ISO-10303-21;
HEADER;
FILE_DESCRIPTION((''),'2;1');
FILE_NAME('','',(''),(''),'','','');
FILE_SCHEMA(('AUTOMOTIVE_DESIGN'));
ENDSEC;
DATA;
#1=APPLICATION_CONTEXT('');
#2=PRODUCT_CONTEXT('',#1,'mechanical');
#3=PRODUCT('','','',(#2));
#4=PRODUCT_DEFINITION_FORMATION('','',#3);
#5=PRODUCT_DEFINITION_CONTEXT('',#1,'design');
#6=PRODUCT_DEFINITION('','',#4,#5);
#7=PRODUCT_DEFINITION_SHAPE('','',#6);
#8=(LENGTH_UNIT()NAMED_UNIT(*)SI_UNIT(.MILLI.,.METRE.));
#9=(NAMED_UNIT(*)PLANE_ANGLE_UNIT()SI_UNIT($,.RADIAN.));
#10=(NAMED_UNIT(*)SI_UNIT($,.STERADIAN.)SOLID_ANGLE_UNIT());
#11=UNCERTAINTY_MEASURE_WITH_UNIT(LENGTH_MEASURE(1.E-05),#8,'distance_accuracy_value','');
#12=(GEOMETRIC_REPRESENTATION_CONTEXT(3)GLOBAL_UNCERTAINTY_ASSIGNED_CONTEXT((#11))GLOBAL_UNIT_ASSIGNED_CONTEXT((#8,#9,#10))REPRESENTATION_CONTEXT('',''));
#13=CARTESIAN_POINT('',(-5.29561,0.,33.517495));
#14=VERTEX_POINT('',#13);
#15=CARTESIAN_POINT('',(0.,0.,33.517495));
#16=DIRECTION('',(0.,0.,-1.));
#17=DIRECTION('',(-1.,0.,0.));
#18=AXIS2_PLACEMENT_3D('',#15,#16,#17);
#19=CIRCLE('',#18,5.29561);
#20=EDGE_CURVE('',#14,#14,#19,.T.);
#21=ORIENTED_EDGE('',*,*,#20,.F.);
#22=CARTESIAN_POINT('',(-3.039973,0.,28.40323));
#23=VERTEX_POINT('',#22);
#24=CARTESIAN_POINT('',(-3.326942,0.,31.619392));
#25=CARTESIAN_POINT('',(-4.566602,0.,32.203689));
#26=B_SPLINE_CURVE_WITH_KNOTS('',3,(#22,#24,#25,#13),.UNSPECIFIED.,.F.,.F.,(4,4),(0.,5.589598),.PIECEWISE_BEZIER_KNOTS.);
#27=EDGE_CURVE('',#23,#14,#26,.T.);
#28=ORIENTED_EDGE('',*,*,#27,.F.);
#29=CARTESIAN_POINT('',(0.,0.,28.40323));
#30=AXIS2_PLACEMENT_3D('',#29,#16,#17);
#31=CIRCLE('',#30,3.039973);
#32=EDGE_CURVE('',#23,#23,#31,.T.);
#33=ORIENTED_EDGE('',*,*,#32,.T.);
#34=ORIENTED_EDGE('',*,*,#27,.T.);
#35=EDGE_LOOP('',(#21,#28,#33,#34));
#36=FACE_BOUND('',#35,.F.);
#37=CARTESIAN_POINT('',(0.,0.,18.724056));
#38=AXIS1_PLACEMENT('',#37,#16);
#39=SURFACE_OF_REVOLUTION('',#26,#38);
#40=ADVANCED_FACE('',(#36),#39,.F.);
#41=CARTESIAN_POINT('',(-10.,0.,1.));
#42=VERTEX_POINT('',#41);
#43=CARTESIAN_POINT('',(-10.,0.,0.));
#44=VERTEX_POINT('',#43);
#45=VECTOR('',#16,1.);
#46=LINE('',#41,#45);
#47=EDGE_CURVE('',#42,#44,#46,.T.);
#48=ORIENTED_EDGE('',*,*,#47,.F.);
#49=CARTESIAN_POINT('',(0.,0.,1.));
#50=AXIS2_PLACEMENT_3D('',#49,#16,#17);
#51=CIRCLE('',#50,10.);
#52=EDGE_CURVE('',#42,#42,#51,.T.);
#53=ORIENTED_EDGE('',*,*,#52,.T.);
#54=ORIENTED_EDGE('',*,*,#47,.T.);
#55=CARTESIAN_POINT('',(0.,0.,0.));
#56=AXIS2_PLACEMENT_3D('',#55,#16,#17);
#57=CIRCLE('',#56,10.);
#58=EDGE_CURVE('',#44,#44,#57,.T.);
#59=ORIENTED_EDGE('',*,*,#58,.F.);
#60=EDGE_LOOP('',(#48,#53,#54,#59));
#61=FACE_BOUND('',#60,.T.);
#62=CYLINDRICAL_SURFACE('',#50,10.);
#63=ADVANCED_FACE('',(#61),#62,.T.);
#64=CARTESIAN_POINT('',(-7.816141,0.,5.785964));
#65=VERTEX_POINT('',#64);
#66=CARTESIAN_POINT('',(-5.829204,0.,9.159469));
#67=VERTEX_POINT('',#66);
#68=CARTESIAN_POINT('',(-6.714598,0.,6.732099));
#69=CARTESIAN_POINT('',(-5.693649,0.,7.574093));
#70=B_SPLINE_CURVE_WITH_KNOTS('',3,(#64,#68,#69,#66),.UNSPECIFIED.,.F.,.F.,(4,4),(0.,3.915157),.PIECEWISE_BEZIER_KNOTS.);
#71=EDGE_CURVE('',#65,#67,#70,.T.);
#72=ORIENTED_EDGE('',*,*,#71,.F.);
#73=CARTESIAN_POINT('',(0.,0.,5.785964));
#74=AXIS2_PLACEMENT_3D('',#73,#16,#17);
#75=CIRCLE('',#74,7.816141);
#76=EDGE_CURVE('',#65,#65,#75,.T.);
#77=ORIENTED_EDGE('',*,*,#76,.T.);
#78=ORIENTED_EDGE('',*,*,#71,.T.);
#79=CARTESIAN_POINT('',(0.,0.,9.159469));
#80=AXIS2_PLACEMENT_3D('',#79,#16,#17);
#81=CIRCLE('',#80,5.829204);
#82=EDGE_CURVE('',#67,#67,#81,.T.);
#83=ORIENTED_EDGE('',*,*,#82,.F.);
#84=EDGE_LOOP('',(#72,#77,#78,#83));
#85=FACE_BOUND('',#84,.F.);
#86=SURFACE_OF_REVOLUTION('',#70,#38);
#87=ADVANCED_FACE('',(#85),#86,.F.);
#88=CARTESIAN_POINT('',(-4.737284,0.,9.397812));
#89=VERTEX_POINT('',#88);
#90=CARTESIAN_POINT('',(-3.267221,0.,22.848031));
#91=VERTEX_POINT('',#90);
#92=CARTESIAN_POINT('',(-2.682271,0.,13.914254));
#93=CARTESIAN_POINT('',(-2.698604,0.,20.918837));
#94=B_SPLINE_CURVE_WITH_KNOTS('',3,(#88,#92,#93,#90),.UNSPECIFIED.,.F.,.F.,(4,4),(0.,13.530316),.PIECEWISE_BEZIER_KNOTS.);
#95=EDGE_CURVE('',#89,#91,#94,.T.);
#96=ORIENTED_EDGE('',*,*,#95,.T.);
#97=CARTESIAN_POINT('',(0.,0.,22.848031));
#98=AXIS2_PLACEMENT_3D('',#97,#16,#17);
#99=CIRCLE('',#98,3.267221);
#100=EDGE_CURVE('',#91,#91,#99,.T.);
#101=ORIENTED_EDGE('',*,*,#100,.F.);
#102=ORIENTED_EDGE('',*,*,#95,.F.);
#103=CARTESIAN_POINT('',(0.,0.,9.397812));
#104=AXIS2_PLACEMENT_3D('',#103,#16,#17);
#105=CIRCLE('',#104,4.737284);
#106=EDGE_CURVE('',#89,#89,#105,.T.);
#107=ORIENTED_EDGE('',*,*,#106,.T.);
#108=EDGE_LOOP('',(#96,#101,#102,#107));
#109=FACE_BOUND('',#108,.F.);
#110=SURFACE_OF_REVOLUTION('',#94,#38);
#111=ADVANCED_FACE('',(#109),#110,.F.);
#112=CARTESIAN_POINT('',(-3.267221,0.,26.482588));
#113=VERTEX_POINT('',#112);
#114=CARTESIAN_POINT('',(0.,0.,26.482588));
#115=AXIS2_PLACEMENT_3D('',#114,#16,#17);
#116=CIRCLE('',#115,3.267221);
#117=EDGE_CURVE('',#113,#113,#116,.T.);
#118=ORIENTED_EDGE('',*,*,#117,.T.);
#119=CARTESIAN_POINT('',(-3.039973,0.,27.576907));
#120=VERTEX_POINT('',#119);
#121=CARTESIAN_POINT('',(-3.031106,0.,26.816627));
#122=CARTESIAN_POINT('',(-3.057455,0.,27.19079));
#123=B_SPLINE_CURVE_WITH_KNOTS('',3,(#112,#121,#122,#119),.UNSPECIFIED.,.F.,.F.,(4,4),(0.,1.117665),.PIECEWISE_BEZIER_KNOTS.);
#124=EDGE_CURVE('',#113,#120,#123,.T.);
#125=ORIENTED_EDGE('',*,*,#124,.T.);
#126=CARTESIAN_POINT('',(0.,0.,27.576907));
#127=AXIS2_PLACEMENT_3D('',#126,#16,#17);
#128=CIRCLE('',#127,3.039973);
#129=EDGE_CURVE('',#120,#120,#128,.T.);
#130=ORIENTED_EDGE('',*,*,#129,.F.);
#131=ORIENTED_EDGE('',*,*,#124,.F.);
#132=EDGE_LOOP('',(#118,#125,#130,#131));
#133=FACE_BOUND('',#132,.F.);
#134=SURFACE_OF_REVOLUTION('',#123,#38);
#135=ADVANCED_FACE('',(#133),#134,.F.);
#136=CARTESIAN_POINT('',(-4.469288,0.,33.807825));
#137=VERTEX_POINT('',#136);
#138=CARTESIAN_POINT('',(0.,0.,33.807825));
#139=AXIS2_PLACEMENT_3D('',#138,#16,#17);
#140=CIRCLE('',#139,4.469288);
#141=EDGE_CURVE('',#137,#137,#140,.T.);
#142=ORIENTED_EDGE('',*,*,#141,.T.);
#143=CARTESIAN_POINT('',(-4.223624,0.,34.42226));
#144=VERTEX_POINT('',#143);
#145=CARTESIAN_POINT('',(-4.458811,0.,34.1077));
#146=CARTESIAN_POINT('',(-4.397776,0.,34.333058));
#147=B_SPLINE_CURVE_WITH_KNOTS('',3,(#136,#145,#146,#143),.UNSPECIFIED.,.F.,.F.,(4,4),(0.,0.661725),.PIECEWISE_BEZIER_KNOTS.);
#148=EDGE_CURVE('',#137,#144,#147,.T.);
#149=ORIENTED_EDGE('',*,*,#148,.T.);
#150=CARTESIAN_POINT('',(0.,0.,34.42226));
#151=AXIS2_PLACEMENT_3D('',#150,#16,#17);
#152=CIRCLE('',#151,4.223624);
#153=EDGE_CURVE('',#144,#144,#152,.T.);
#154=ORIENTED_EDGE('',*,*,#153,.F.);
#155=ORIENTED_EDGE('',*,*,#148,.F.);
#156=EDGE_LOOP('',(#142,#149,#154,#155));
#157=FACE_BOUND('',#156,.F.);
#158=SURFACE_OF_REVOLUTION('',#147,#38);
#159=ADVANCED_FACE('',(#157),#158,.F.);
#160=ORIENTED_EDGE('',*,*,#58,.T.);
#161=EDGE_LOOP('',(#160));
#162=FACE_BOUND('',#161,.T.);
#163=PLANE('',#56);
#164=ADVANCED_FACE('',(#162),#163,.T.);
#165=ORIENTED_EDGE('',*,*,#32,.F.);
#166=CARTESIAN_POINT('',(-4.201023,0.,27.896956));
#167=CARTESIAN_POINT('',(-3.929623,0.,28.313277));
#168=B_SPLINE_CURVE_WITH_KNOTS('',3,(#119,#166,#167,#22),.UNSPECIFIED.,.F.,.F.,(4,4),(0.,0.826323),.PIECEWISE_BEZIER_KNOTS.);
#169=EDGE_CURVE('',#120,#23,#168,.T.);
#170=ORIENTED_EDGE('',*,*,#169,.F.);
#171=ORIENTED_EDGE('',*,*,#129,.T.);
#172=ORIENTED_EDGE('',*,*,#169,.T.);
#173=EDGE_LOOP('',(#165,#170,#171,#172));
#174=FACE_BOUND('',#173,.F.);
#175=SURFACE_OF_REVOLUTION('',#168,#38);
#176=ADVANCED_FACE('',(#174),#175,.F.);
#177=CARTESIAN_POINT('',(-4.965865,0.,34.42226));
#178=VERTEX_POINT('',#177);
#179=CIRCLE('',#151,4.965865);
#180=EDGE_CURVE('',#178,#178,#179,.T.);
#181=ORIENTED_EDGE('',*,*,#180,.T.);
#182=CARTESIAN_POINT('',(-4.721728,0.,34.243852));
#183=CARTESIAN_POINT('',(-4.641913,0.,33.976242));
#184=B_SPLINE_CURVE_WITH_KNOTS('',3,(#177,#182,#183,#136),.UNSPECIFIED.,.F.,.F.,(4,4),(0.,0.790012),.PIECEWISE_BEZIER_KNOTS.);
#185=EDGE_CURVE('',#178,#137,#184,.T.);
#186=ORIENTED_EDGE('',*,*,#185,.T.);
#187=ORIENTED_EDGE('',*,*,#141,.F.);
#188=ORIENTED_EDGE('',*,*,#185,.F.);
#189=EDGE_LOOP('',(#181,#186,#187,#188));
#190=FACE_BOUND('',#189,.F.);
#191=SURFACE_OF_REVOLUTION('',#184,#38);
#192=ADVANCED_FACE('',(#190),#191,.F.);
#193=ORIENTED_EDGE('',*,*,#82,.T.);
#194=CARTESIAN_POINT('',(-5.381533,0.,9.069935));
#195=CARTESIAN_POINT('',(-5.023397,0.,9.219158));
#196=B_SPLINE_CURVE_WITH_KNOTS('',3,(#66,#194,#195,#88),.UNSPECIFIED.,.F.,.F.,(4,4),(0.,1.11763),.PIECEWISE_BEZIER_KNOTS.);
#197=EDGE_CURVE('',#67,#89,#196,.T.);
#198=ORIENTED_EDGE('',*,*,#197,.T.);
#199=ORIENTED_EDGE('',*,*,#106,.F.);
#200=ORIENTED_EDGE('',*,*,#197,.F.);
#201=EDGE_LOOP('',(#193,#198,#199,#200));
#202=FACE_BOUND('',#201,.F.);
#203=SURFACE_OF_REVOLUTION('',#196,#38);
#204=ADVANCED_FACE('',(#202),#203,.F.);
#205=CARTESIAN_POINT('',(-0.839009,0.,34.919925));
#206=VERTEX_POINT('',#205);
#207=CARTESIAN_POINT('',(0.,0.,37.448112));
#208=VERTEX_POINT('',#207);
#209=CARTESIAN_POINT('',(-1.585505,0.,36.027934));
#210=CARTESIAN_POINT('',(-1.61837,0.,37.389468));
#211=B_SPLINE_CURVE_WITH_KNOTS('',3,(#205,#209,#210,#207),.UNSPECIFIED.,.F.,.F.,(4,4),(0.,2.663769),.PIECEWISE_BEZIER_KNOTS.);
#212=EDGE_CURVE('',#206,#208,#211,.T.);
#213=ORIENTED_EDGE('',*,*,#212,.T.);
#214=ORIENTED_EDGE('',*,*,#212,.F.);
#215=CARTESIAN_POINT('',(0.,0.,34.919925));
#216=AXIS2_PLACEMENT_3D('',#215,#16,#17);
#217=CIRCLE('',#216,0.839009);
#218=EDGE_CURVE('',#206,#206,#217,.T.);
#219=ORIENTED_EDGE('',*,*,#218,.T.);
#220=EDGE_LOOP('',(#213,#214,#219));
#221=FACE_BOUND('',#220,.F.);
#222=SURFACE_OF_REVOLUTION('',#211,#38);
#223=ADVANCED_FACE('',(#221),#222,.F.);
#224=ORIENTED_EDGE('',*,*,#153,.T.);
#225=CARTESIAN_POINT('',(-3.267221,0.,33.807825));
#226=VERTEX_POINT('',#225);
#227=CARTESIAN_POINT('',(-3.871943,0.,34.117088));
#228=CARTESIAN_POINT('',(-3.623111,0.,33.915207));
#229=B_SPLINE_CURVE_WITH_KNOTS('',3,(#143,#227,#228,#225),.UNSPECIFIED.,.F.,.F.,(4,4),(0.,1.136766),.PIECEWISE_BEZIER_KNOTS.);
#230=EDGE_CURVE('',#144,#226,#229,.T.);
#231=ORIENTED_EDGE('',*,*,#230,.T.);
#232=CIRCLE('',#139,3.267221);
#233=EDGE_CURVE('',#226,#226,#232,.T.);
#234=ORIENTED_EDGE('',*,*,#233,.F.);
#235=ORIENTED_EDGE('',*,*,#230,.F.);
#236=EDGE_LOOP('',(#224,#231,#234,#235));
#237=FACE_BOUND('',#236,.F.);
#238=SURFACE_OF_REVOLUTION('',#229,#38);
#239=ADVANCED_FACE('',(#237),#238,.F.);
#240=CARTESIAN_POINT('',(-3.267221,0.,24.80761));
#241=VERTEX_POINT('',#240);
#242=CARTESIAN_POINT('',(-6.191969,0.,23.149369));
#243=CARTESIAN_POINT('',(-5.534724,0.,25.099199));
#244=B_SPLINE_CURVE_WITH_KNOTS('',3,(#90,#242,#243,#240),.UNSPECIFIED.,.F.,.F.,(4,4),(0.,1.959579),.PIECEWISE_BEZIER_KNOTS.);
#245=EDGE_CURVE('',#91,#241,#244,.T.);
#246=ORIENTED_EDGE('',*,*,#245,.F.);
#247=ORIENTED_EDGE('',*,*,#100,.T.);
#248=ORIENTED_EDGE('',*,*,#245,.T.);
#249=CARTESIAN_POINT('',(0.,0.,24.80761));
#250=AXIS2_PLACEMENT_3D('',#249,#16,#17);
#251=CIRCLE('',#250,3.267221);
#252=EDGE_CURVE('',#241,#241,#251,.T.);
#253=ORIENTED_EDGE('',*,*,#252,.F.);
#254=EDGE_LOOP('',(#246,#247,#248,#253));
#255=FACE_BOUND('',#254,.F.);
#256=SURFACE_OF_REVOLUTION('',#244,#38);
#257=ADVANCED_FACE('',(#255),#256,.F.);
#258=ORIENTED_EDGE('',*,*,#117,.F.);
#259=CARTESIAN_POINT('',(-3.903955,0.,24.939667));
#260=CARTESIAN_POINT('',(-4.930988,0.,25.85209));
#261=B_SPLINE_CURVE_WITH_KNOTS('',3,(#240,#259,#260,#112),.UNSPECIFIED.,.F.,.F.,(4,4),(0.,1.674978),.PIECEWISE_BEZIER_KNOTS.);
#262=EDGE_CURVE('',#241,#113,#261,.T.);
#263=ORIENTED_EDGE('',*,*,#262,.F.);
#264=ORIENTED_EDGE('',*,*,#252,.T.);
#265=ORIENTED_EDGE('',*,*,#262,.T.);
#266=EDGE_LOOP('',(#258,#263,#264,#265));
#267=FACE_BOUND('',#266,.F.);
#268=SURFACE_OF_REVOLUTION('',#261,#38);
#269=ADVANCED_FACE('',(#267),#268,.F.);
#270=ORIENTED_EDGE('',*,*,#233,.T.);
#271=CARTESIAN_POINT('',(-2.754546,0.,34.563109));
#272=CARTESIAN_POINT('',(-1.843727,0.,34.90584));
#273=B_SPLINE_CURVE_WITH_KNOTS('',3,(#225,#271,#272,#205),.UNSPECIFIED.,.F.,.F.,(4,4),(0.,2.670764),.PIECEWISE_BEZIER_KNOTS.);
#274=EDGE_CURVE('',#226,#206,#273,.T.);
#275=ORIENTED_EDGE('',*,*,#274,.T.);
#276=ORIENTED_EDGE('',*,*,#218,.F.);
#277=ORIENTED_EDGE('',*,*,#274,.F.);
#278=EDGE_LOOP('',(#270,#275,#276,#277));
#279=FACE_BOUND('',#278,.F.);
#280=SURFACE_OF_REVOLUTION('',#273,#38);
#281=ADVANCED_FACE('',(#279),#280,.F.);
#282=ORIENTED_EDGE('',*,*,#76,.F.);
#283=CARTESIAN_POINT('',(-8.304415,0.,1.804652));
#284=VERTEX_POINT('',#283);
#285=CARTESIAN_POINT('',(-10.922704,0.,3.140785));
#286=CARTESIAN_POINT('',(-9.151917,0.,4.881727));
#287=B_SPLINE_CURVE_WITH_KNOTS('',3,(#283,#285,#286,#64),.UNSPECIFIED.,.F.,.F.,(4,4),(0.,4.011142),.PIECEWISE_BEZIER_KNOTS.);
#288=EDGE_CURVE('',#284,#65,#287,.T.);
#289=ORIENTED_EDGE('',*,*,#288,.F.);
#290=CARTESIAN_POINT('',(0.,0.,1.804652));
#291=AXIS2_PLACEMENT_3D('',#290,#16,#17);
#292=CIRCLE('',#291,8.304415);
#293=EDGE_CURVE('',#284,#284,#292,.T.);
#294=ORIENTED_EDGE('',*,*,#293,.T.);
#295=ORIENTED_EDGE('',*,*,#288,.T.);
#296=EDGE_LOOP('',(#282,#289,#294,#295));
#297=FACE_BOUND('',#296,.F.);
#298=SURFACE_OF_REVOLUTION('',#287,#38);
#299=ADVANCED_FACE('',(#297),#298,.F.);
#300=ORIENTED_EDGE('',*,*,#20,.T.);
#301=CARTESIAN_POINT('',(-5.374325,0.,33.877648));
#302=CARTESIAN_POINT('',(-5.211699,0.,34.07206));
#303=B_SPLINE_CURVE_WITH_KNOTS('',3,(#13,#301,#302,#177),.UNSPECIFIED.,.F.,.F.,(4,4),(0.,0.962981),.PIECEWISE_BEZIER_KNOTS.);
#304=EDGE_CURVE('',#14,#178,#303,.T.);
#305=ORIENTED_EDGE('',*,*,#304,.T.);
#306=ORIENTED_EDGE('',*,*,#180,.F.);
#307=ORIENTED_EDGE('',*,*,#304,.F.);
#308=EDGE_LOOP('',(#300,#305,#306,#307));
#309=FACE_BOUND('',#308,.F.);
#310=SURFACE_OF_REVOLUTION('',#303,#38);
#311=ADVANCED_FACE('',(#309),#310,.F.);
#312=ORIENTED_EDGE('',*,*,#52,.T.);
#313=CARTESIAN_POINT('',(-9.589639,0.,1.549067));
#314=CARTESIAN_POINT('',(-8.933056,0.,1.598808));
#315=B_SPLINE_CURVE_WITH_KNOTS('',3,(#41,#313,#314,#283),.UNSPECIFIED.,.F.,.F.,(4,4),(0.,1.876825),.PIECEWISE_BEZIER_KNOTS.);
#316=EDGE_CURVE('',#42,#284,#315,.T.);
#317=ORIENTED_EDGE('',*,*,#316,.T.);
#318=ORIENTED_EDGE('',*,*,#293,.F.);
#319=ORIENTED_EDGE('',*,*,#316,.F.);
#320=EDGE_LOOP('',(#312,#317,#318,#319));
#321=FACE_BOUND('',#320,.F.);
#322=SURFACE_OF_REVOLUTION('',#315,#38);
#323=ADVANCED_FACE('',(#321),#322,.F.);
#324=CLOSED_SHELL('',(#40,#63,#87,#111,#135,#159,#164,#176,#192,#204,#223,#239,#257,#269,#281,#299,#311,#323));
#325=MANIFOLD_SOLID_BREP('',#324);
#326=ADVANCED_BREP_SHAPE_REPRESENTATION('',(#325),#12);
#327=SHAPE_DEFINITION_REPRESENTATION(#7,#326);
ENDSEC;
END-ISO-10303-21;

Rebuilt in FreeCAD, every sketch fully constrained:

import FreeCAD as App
import Part
import Sketcher

V = App.Vector

doc = App.newDocument("Part")
body = doc.addObject("PartDesign::Body", "Body")

# Sketch on XZ plane
sketch1 = body.newObject("Sketcher::SketchObject", "Sketch")
sketch1.AttachmentSupport = (doc.getObject("XZ_Plane"), [""])
sketch1.MapMode = "FlatFace"
sketch1.addGeometry(Part.LineSegment(V(-10, 0, 0), V(0, 0, 0)), False)
sketch1.addGeometry(Part.LineSegment(V(0, 0, 0), V(0, 37.448112, 0)), False)
sketch1.addGeometry(Part.BSplineCurve([V(-0.839009, 34.919925, 0), V(-1.585505, 36.027934, 0), V(-1.61837, 37.389468, 0), V(0, 37.448112, 0)], [4, 4], [0, 2.663769], False, 3, [1, 1, 1, 1], False), False)
sketch1.addGeometry(Part.BSplineCurve([V(-3.267221, 33.807825, 0), V(-2.754546, 34.563109, 0), V(-1.843727, 34.90584, 0), V(-0.839009, 34.919925, 0)], [4, 4], [0, 2.670764], False, 3, [1, 1, 1, 1], False), False)
sketch1.addGeometry(Part.BSplineCurve([V(-4.223624, 34.42226, 0), V(-3.871943, 34.117088, 0), V(-3.623111, 33.915207, 0), V(-3.267221, 33.807825, 0)], [4, 4], [0, 1.136766], False, 3, [1, 1, 1, 1], False), False)
sketch1.addGeometry(Part.BSplineCurve([V(-4.469288, 33.807825, 0), V(-4.458811, 34.1077, 0), V(-4.397776, 34.333058, 0), V(-4.223624, 34.42226, 0)], [4, 4], [0, 0.661725], False, 3, [1, 1, 1, 1], False), False)
sketch1.addGeometry(Part.BSplineCurve([V(-4.965865, 34.42226, 0), V(-4.721728, 34.243852, 0), V(-4.641913, 33.976242, 0), V(-4.469288, 33.807825, 0)], [4, 4], [0, 0.790012], False, 3, [1, 1, 1, 1], False), False)
sketch1.addGeometry(Part.BSplineCurve([V(-5.29561, 33.517495, 0), V(-5.374325, 33.877648, 0), V(-5.211699, 34.07206, 0), V(-4.965865, 34.42226, 0)], [4, 4], [0, 0.962981], False, 3, [1, 1, 1, 1], False), False)
sketch1.addGeometry(Part.BSplineCurve([V(-3.039973, 28.40323, 0), V(-3.326942, 31.619392, 0), V(-4.566602, 32.203689, 0), V(-5.29561, 33.517495, 0)], [4, 4], [0, 5.589598], False, 3, [1, 1, 1, 1], False), False)
sketch1.addGeometry(Part.BSplineCurve([V(-3.039973, 27.576907, 0), V(-4.201023, 27.896956, 0), V(-3.929623, 28.313277, 0), V(-3.039973, 28.40323, 0)], [4, 4], [0, 0.826323], False, 3, [1, 1, 1, 1], False), False)
sketch1.addGeometry(Part.BSplineCurve([V(-3.267221, 26.482588, 0), V(-3.031106, 26.816627, 0), V(-3.057455, 27.19079, 0), V(-3.039973, 27.576907, 0)], [4, 4], [0, 1.117665], False, 3, [1, 1, 1, 1], False), False)
sketch1.addGeometry(Part.BSplineCurve([V(-3.267221, 24.80761, 0), V(-3.903955, 24.939667, 0), V(-4.930988, 25.85209, 0), V(-3.267221, 26.482588, 0)], [4, 4], [0, 1.674978], False, 3, [1, 1, 1, 1], False), False)
sketch1.addGeometry(Part.BSplineCurve([V(-3.267221, 22.848031, 0), V(-6.191969, 23.149369, 0), V(-5.534724, 25.099199, 0), V(-3.267221, 24.80761, 0)], [4, 4], [0, 1.959579], False, 3, [1, 1, 1, 1], False), False)
sketch1.addGeometry(Part.BSplineCurve([V(-4.737284, 9.397812, 0), V(-2.682271, 13.914254, 0), V(-2.698604, 20.918837, 0), V(-3.267221, 22.848031, 0)], [4, 4], [0, 13.530316], False, 3, [1, 1, 1, 1], False), False)
sketch1.addGeometry(Part.BSplineCurve([V(-5.829204, 9.159469, 0), V(-5.381533, 9.069935, 0), V(-5.023397, 9.219158, 0), V(-4.737284, 9.397812, 0)], [4, 4], [0, 1.11763], False, 3, [1, 1, 1, 1], False), False)
sketch1.addGeometry(Part.BSplineCurve([V(-7.816141, 5.785964, 0), V(-6.714598, 6.732099, 0), V(-5.693649, 7.574093, 0), V(-5.829204, 9.159469, 0)], [4, 4], [0, 3.915157], False, 3, [1, 1, 1, 1], False), False)
sketch1.addGeometry(Part.BSplineCurve([V(-8.304415, 1.804652, 0), V(-10.922704, 3.140785, 0), V(-9.151917, 4.881727, 0), V(-7.816141, 5.785964, 0)], [4, 4], [0, 4.011142], False, 3, [1, 1, 1, 1], False), False)
sketch1.addGeometry(Part.BSplineCurve([V(-10, 1, 0), V(-9.589639, 1.549067, 0), V(-8.933056, 1.598808, 0), V(-8.304415, 1.804652, 0)], [4, 4], [0, 1.876825], False, 3, [1, 1, 1, 1], False), False)
sketch1.addGeometry(Part.LineSegment(V(-10, 1, 0), V(-10, 0, 0)), False)
sketch1.addConstraint(Sketcher.Constraint("Block", 2))
sketch1.addConstraint(Sketcher.Constraint("Block", 3))
sketch1.addConstraint(Sketcher.Constraint("Block", 4))
sketch1.addConstraint(Sketcher.Constraint("Block", 5))
sketch1.addConstraint(Sketcher.Constraint("Block", 6))
sketch1.addConstraint(Sketcher.Constraint("Block", 7))
sketch1.addConstraint(Sketcher.Constraint("Block", 8))
sketch1.addConstraint(Sketcher.Constraint("Block", 9))
sketch1.addConstraint(Sketcher.Constraint("Block", 10))
sketch1.addConstraint(Sketcher.Constraint("Block", 11))
sketch1.addConstraint(Sketcher.Constraint("Block", 12))
sketch1.addConstraint(Sketcher.Constraint("Block", 13))
sketch1.addConstraint(Sketcher.Constraint("Block", 14))
sketch1.addConstraint(Sketcher.Constraint("Block", 15))
sketch1.addConstraint(Sketcher.Constraint("Block", 16))
sketch1.addConstraint(Sketcher.Constraint("Block", 17))
sketch1.addConstraint(Sketcher.Constraint("Coincident", 0, 2, 1, 1))
sketch1.addConstraint(Sketcher.Constraint("Coincident", 1, 2, 2, 2))
sketch1.addConstraint(Sketcher.Constraint("Coincident", 17, 1, 18, 1))
sketch1.addConstraint(Sketcher.Constraint("Coincident", 18, 2, 0, 1))
sketch1.addConstraint(Sketcher.Constraint("Horizontal", 0))
sketch1.addConstraint(Sketcher.Constraint("Vertical", 1))
sketch1.addConstraint(Sketcher.Constraint("Vertical", 18))
sketch1.addConstraint(Sketcher.Constraint("PointOnObject", 18, 2, -1))
revolution = body.newObject("PartDesign::Revolution", "Revolution")
revolution.Profile = sketch1
revolution.ReferenceAxis = (sketch1, ["V_Axis"])
revolution.Angle = 360

doc.recompute()
